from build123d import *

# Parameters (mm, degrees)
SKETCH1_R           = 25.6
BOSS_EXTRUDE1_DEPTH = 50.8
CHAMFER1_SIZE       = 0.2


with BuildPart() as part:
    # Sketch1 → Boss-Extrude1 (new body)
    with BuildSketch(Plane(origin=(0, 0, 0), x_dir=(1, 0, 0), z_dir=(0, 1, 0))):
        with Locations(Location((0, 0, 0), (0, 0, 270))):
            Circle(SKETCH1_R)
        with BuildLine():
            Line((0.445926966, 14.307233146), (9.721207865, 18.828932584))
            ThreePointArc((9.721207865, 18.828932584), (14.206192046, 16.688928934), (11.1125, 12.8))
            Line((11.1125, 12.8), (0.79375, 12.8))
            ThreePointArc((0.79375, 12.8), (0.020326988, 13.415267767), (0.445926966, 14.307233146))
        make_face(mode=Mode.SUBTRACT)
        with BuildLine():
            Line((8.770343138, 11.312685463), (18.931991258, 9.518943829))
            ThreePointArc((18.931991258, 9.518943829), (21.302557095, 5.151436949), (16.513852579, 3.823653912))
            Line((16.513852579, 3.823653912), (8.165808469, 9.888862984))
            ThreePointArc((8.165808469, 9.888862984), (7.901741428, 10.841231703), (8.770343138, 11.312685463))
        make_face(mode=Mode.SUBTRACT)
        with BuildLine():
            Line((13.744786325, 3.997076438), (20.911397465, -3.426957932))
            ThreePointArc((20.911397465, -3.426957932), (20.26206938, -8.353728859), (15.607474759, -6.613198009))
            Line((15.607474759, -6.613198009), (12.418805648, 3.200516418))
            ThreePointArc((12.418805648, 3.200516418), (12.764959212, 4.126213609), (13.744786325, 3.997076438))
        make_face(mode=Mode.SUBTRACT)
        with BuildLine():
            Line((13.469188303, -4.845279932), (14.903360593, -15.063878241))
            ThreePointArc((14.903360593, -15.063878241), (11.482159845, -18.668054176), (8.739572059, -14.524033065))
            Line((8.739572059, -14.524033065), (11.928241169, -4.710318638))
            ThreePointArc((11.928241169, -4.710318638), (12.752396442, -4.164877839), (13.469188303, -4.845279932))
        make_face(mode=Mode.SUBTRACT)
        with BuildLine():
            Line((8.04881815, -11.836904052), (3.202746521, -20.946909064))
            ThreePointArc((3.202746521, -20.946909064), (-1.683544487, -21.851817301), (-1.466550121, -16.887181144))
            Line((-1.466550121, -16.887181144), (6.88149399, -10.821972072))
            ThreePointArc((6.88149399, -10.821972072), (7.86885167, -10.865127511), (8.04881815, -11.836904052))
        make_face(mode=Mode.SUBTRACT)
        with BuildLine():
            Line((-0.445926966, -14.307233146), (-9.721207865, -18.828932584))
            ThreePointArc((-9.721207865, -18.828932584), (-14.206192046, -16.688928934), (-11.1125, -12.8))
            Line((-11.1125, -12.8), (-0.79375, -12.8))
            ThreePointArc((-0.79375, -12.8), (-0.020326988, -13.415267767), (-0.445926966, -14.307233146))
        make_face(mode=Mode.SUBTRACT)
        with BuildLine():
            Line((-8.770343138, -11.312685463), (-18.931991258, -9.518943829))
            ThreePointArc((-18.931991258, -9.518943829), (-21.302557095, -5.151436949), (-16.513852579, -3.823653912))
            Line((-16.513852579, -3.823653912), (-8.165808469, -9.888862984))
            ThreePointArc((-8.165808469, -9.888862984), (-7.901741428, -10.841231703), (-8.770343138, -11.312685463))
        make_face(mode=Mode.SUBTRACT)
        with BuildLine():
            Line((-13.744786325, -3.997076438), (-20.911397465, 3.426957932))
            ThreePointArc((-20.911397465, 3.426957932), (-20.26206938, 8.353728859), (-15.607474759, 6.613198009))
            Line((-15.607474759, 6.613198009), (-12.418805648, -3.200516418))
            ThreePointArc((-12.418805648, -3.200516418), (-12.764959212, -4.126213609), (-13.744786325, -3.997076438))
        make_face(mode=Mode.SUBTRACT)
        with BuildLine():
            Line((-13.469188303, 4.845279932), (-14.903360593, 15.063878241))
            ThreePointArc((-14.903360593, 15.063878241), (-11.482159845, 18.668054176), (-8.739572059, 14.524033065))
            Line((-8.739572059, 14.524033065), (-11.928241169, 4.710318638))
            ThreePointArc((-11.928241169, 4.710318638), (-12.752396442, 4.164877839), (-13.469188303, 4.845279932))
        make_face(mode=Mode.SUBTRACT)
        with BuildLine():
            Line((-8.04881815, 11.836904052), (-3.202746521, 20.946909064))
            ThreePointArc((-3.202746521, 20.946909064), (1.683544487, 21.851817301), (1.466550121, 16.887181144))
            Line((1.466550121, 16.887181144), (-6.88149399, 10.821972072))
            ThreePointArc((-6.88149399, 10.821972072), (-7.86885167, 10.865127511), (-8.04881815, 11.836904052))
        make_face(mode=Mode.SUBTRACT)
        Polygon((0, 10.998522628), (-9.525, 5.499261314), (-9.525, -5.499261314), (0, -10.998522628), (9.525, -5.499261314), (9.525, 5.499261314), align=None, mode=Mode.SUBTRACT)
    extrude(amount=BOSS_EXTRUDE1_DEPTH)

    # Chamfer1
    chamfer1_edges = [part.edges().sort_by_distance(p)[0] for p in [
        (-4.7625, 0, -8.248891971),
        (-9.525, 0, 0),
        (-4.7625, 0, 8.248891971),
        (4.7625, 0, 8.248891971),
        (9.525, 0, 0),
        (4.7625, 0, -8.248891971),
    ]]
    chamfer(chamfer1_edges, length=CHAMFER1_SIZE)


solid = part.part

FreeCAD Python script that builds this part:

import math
import FreeCAD as App
import Part
import Sketcher
from FreeCAD import Vector
Q = App.Units.Quantity


def edges_at(feature, points):
    """Names of the edges that pass closest to the given points."""
    edges = feature.Shape.Edges
    near = lambda p: min(range(len(edges)), key=lambda i: edges[i].distToShape(Part.Vertex(*p))[0])
    return sorted({f"Edge{near(p) + 1}" for p in points})

doc = App.newDocument("Part")
body = doc.addObject("PartDesign::Body", "Body")

sketch1 = doc.addObject("Sketcher::SketchObject", "Sketch")
body.addObject(sketch1)
sketch1.AttachmentSupport = (doc.XZ_Plane, [""])
sketch1.MapMode = "FlatFace"
sketch1.addGeometry([
    Part.Circle(Vector(0, 0, 0), Vector(0, 0, 1), 25.6),
    Part.ArcOfCircle(Part.Circle(Vector(-12.7, -5, 0), Vector(0, 0, 1), 0.8), math.radians(18), math.radians(172)),
    Part.LineSegment(Vector(-13.5, -4.8, 0), Vector(-14.9, -15.1, 0)),
    Part.ArcOfCircle(Part.Circle(Vector(-11.8, -15.5, 0), Vector(0, 0, 1), 3.2), math.radians(172), math.radians(378)),
    Part.LineSegment(Vector(-8.7, -14.5, 0), Vector(-11.9, -4.7, 0)),
    Part.ArcOfCircle(Part.Circle(Vector(-13.2, 3.4, 0), Vector(0, 0, 1), 0.8), math.radians(-18), math.radians(136)),
    Part.LineSegment(Vector(-13.7, 4, 0), Vector(-20.9, -3.4, 0)),
    Part.ArcOfCircle(Part.Circle(Vector(-18.6, -5.6, 0), Vector(0, 0, 1), 3.2), math.radians(136), math.radians(342)),
    Part.LineSegment(Vector(-15.6, -6.6, 0), Vector(-12.4, 3.2, 0)),
    Part.ArcOfCircle(Part.Circle(Vector(-7.3, -11.5, 0), Vector(0, 0, 1), 0.8), math.radians(54), math.radians(208)),
    Part.LineSegment(Vector(-8, -11.8, 0), Vector(-3.2, -20.9, 0)),
    Part.ArcOfCircle(Part.Circle(Vector(-0.4, -19.5, 0), Vector(0, 0, 1), 3.2), math.radians(-152), math.radians(54)),
    Part.LineSegment(Vector(1.5, -16.9, 0), Vector(-6.9, -10.8, 0)),
    Part.ArcOfCircle(Part.Circle(Vector(-8.6, 10.5, 0), Vector(0, 0, 1), 0.8), math.radians(-54), math.radians(100)),
    Part.LineSegment(Vector(-8.8, 11.3, 0), Vector(-18.9, 9.5, 0)),
    Part.ArcOfCircle(Part.Circle(Vector(-18.4, 6.4, 0), Vector(0, 0, 1), 3.2), math.radians(100), math.radians(306)),
    Part.LineSegment(Vector(-16.5, 3.8, 0), Vector(-8.2, 9.9, 0)),
    Part.ArcOfCircle(Part.Circle(Vector(-0.8, 13.6, 0), Vector(0, 0, 1), 0.8), math.radians(-90), math.radians(64)),
    Part.LineSegment(Vector(-0.4, 14.3, 0), Vector(-9.7, 18.8, 0)),
    Part.ArcOfCircle(Part.Circle(Vector(-11.1, 16, 0), Vector(0, 0, 1), 3.2), math.radians(64), math.radians(270)),
    Part.LineSegment(Vector(-11.1, 12.8, 0), Vector(-0.8, 12.8, 0)),
    Part.ArcOfCircle(Part.Circle(Vector(0.8, -13.6, 0), Vector(0, 0, 1), 0.8), math.radians(90), math.radians(244)),
    Part.LineSegment(Vector(0.4, -14.3, 0), Vector(9.7, -18.8, 0)),
    Part.ArcOfCircle(Part.Circle(Vector(11.1, -16, 0), Vector(0, 0, 1), 3.2), math.radians(-116), math.radians(90)),
    Part.LineSegment(Vector(11.1, -12.8, 0), Vector(0.8, -12.8, 0)),
    Part.ArcOfCircle(Part.Circle(Vector(8.6, -10.5, 0), Vector(0, 0, 1), 0.8), math.radians(126), math.radians(280)),
    Part.LineSegment(Vector(8.8, -11.3, 0), Vector(18.9, -9.5, 0)),
    Part.ArcOfCircle(Part.Circle(Vector(18.4, -6.4, 0), Vector(0, 0, 1), 3.2), math.radians(-80), math.radians(126)),
    Part.LineSegment(Vector(16.5, -3.8, 0), Vector(8.2, -9.9, 0)),
    Part.LineSegment(Vector(-9.5, -5.5, 0), Vector(0, -11, 0)),
    Part.LineSegment(Vector(0, -11, 0), Vector(9.5, -5.5, 0)),
    Part.LineSegment(Vector(9.5, -5.5, 0), Vector(9.5, 5.5, 0)),
    Part.LineSegment(Vector(9.5, 5.5, 0), Vector(0, 11, 0)),
    Part.LineSegment(Vector(0, 11, 0), Vector(-9.5, 5.5, 0)),
    Part.LineSegment(Vector(-9.5, 5.5, 0), Vector(-9.5, -5.5, 0)),
    Part.ArcOfCircle(Part.Circle(Vector(7.3, 11.5, 0), Vector(0, 0, 1), 0.8), math.radians(-126), math.radians(28)),
    Part.LineSegment(Vector(8, 11.8, 0), Vector(3.2, 20.9, 0)),
    Part.ArcOfCircle(Part.Circle(Vector(0.4, 19.5, 0), Vector(0, 0, 1), 3.2), math.radians(28), math.radians(234)),
    Part.LineSegment(Vector(-1.5, 16.9, 0), Vector(6.9, 10.8, 0)),
    Part.ArcOfCircle(Part.Circle(Vector(13.2, -3.4, 0), Vector(0, 0, 1), 0.8), math.radians(162), math.radians(316)),
    Part.LineSegment(Vector(13.7, -4, 0), Vector(20.9, 3.4, 0)),
    Part.ArcOfCircle(Part.Circle(Vector(18.6, 5.6, 0), Vector(0, 0, 1), 3.2), math.radians(-44), math.radians(162)),
    Part.LineSegment(Vector(15.6, 6.6, 0), Vector(12.4, -3.2, 0)),
    Part.ArcOfCircle(Part.Circle(Vector(12.7, 5, 0), Vector(0, 0, 1), 0.8), math.radians(-162), math.radians(-8)),
    Part.LineSegment(Vector(13.5, 4.8, 0), Vector(14.9, 15.1, 0)),
    Part.ArcOfCircle(Part.Circle(Vector(11.8, 15.5, 0), Vector(0, 0, 1), 3.2), math.radians(-8), math.radians(198)),
    Part.LineSegment(Vector(8.7, 14.5, 0), Vector(11.9, 4.7, 0)),
], False)
sketch1.addConstraint([
    Sketcher.Constraint("Tangent", 1, 2, 2, 1),
    Sketcher.Constraint("Tangent", 2, 2, 3, 1),
    Sketcher.Constraint("Tangent", 3, 2, 4, 1),
    Sketcher.Constraint("Tangent", 4, 2, 1, 1),
    Sketcher.Constraint("Tangent", 5, 2, 6, 1),
    Sketcher.Constraint("Tangent", 6, 2, 7, 1),
    Sketcher.Constraint("Tangent", 7, 2, 8, 1),
    Sketcher.Constraint("Tangent", 8, 2, 5, 1),
    Sketcher.Constraint("Tangent", 9, 2, 10, 1),
    Sketcher.Constraint("Tangent", 10, 2, 11, 1),
    Sketcher.Constraint("Tangent", 11, 2, 12, 1),
    Sketcher.Constraint("Tangent", 12, 2, 9, 1),
    Sketcher.Constraint("Tangent", 13, 2, 14, 1),
    Sketcher.Constraint("Tangent", 14, 2, 15, 1),
    Sketcher.Constraint("Tangent", 15, 2, 16, 1),
    Sketcher.Constraint("Tangent", 16, 2, 13, 1),
    Sketcher.Constraint("Tangent", 17, 2, 18, 1),
    Sketcher.Constraint("Tangent", 18, 2, 19, 1),
    Sketcher.Constraint("Tangent", 19, 2, 20, 1),
    Sketcher.Constraint("Tangent", 20, 2, 17, 1),
    Sketcher.Constraint("Tangent", 21, 2, 22, 1),
    Sketcher.Constraint("Tangent", 22, 2, 23, 1),
    Sketcher.Constraint("Tangent", 23, 2, 24, 1),
    Sketcher.Constraint("Tangent", 24, 2, 21, 1),
    Sketcher.Constraint("Tangent", 25, 2, 26, 1),
    Sketcher.Constraint("Tangent", 26, 2, 27, 1),
    Sketcher.Constraint("Tangent", 27, 2, 28, 1),
    Sketcher.Constraint("Tangent", 28, 2, 25, 1),
    Sketcher.Constraint("Coincident", 29, 2, 30, 1),
    Sketcher.Constraint("Coincident", 30, 2, 31, 1),
    Sketcher.Constraint("Coincident", 31, 2, 32, 1),
    Sketcher.Constraint("Coincident", 32, 2, 33, 1),
    Sketcher.Constraint("Coincident", 33, 2, 34, 1),
    Sketcher.Constraint("Coincident", 34, 2, 29, 1),
    Sketcher.Constraint("Tangent", 35, 2, 36, 1),
    Sketcher.Constraint("Tangent", 36, 2, 37, 1),
    Sketcher.Constraint("Tangent", 37, 2, 38, 1),
    Sketcher.Constraint("Tangent", 38, 2, 35, 1),
    Sketcher.Constraint("Tangent", 39, 2, 40, 1),
    Sketcher.Constraint("Tangent", 40, 2, 41, 1),
    Sketcher.Constraint("Tangent", 41, 2, 42, 1),
    Sketcher.Constraint("Tangent", 42, 2, 39, 1),
    Sketcher.Constraint("Tangent", 43, 2, 44, 1),
    Sketcher.Constraint("Tangent", 44, 2, 45, 1),
    Sketcher.Constraint("Tangent", 45, 2, 46, 1),
    Sketcher.Constraint("Tangent", 46, 2, 43, 1),
    Sketcher.Constraint("Horizontal", 20),
    Sketcher.Constraint("Horizontal", 24),
    Sketcher.Constraint("Vertical", 31),
    Sketcher.Constraint("Vertical", 34),
    Sketcher.Constraint("Coincident", 0, 3, -1, 1),
    Sketcher.Constraint("Equal", 1, 5),
    Sketcher.Constraint("Equal", 3, 7),
    Sketcher.Constraint("Equal", 5, 9),
    Sketcher.Constraint("Equal", 7, 11),
    Sketcher.Constraint("Equal", 9, 13),
    Sketcher.Constraint("Equal", 11, 15),
    Sketcher.Constraint("Equal", 13, 17),
    Sketcher.Constraint("Equal", 15, 19),
    Sketcher.Constraint("Equal", 17, 21),
    Sketcher.Constraint("Equal", 19, 23),
    Sketcher.Constraint("Equal", 21, 25),
    Sketcher.Constraint("Equal", 23, 27),
    Sketcher.Constraint("Equal", 25, 35),
    Sketcher.Constraint("Equal", 27, 37),
    Sketcher.Constraint("Equal", 35, 39),
    Sketcher.Constraint("Equal", 37, 41),
    Sketcher.Constraint("Equal", 39, 43),
    Sketcher.Constraint("Equal", 41, 45),
    Sketcher.Constraint("Symmetric", 17, 3, 21, 3, -1, 1),
    Sketcher.Constraint("Symmetric", 13, 3, 25, 3, -1, 1),
    Sketcher.Constraint("Symmetric", 15, 3, 27, 3, -1, 1),
    Sketcher.Constraint("Symmetric", 9, 3, 35, 3, -1, 1),
    Sketcher.Constraint("Symmetric", 11, 3, 37, 3, -1, 1),
    Sketcher.Constraint("Symmetric", 5, 3, 39, 3, -1, 1),
    Sketcher.Constraint("Symmetric", 7, 3, 41, 3, -1, 1),
    Sketcher.Constraint("Symmetric", 1, 3, 43, 3, -1, 1),
    Sketcher.Constraint("Symmetric", 3, 3, 45, 3, -1, 1),
    Sketcher.Constraint("Symmetric", 29, 2, 32, 2, -1, 1),
    Sketcher.Constraint("Symmetric", 30, 2, 33, 2, -1, 1),
    Sketcher.Constraint("PointOnObject", 29, 2, -2),
    Sketcher.Constraint("Parallel", 18, 22),
    Sketcher.Constraint("Parallel", 29, 32),
    Sketcher.Constraint("Horizontal", 31, 2, 33, 2),
    Sketcher.Constraint("Equal", 4, 6),
    Sketcher.Constraint("Equal", 8, 10),
    Sketcher.Constraint("Equal", 12, 14),
    Sketcher.Constraint("Equal", 16, 18),
    Sketcher.Constraint("Angle", 4, Q("108 deg")),
    Sketcher.Constraint("Angle", 8, Q("72 deg")),
    Sketcher.Constraint("Angle", 12, Q("144 deg")),
    Sketcher.Constraint("Angle", 16, Q("36 deg")),
    Sketcher.Constraint("Angle", 29, Q("-30 deg")),
    Sketcher.Constraint("Radius", 1, Q("0.03125 in")),
    Sketcher.Constraint("Radius", 3, Q("0.125 in")),
    Sketcher.Constraint("Diameter", 0, 51.2),
    Sketcher.Constraint("DistanceX", 20, 1, 20, 2, Q("0.40625 in")),
    Sketcher.Constraint("DistanceX", 17, 3, -1, 1, Q("0.03125 in")),
    Sketcher.Constraint("DistanceX", -1, 1, 30, 2, Q("0.375 in")),
    Sketcher.Constraint("DistanceY", 1, 3, -1, 1, 4.955601),
    Sketcher.Constraint("DistanceY", -1, 1, 5, 3, 3.445799),
    Sketcher.Constraint("DistanceY", -1, 1, 19, 3, 15.975),
    Sketcher.Constraint("DistanceY", 31, 1, 31, 2, 10.998523),
    Sketcher.Constraint("DistanceX", 7, 3, -1, 1, 18.627079),
    Sketcher.Constraint("DistanceX", 9, 3, -1, 1, 7.348049),
    Sketcher.Constraint("DistanceY", 9, 3, -1, 1, 11.464129),
    Sketcher.Constraint("DistanceY", -1, 1, 13, 3, 10.53102),
    Sketcher.Constraint("DistanceX", 15, 3, -1, 1, 18.380071),
    Sketcher.Constraint("DistanceX", 1, 2, -1, 1, 13.469188),
])
pad1 = doc.addObject("PartDesign::Pad", "Pad")
body.addObject(pad1)
pad1.Profile = sketch1
pad1.Length = Q("2 in")
pad1.Reversed = True
doc.recompute()

chamfer = doc.addObject("PartDesign::Chamfer", "Chamfer")
body.addObject(chamfer)
chamfer.Base = (pad1, edges_at(pad1, [
    (-4.763, 0, -8.249),
    (-9.525, 0, 0),
    (-4.763, 0, 8.249),
    (4.763, 0, 8.249),
    (9.525, 0, 0),
    (4.763, 0, -8.249),
]))
chamfer.Size = 0.2

doc.recompute()
